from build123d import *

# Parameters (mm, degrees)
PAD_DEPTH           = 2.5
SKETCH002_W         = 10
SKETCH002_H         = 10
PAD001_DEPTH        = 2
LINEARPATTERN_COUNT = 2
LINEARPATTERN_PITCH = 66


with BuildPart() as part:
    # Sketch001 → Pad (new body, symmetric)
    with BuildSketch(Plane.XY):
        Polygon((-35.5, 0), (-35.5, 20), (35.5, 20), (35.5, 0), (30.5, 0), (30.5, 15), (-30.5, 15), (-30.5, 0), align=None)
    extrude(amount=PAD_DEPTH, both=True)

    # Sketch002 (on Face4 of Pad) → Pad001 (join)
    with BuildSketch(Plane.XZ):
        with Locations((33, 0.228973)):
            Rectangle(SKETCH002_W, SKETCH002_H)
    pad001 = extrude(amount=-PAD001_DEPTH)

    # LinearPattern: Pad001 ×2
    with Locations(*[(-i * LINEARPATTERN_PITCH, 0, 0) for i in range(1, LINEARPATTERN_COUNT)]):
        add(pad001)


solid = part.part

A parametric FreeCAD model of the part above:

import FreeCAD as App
import Part
import Sketcher

V = App.Vector

doc = App.newDocument("Part")
body = doc.addObject("PartDesign::Body", "Body")

# Sketch on XY plane
sketch1 = body.newObject("Sketcher::SketchObject", "Sketch")
sketch1.AttachmentSupport = (doc.getObject("XY_Plane"), [""])
sketch1.MapMode = "FlatFace"
sketch1.addGeometry(Part.LineSegment(V(-36, 20, 0), V(-36, 0, 0)), False)
sketch1.addGeometry(Part.LineSegment(V(-36, 0, 0), V(-30, 0, 0)), False)
sketch1.addGeometry(Part.LineSegment(V(-30, 0, 0), V(-30, 15, 0)), False)
sketch1.addGeometry(Part.LineSegment(V(-30, 15, 0), V(30, 15, 0)), False)
sketch1.addGeometry(Part.LineSegment(V(30, 15, 0), V(30, 0, 0)), False)
sketch1.addGeometry(Part.LineSegment(V(30, 0, 0), V(36, 0, 0)), False)
sketch1.addGeometry(Part.LineSegment(V(36, 0, 0), V(36, 20, 0)), False)
sketch1.addGeometry(Part.LineSegment(V(36, 20, 0), V(-36, 20, 0)), False)
sketch1.addConstraint(Sketcher.Constraint("Coincident", 0, 2, 1, 1))
sketch1.addConstraint(Sketcher.Constraint("Coincident", 1, 2, 2, 1))
sketch1.addConstraint(Sketcher.Constraint("Coincident", 2, 2, 3, 1))
sketch1.addConstraint(Sketcher.Constraint("Coincident", 3, 2, 4, 1))
sketch1.addConstraint(Sketcher.Constraint("Coincident", 4, 2, 5, 1))
sketch1.addConstraint(Sketcher.Constraint("Coincident", 5, 2, 6, 1))
sketch1.addConstraint(Sketcher.Constraint("Coincident", 6, 2, 7, 1))
sketch1.addConstraint(Sketcher.Constraint("Coincident", 7, 2, 0, 1))
sketch1.addConstraint(Sketcher.Constraint("Vertical", 0))
sketch1.addConstraint(Sketcher.Constraint("Horizontal", 1))
sketch1.addConstraint(Sketcher.Constraint("Vertical", 2))
sketch1.addConstraint(Sketcher.Constraint("Horizontal", 3))
sketch1.addConstraint(Sketcher.Constraint("Vertical", 4))
sketch1.addConstraint(Sketcher.Constraint("Horizontal", 5))
sketch1.addConstraint(Sketcher.Constraint("Vertical", 6))
sketch1.addConstraint(Sketcher.Constraint("Horizontal", 7))
sketch1.addConstraint(Sketcher.Constraint("Symmetric", 1, 2, 4, 2, -1, 1))
sketch1.addConstraint(Sketcher.Constraint("Symmetric", 0, 2, 5, 2, -2))
sketch1.addConstraint(Sketcher.Constraint("DistanceX", 1, 1, 1, 2, 5.0))
sketch1.addConstraint(Sketcher.Constraint("DistanceX", 3, 1, 3, 2, 61.0))
sketch1.addConstraint(Sketcher.Constraint("DistanceY", 0, 2, 0, 1, 20.0))
sketch1.addConstraint(Sketcher.Constraint("DistanceY", 2, 1, 2, 2, 15.0))
pad1 = body.newObject("PartDesign::Pad", "Pad")
pad1.Profile = sketch1
pad1.Length = 5
pad1.Midplane = True

# Sketch on XZ plane
sketch2 = body.newObject("Sketcher::SketchObject", "Sketch001")
sketch2.AttachmentSupport = (doc.getObject("XZ_Plane"), [""])
sketch2.MapMode = "FlatFace"
sketch2.addGeometry(Part.LineSegment(V(28, 5, 0), V(28, -5, 0)), False)
sketch2.addGeometry(Part.LineSegment(V(28, -5, 0), V(38, -5, 0)), False)
sketch2.addGeometry(Part.LineSegment(V(38, -5, 0), V(38, 5, 0)), False)
sketch2.addGeometry(Part.LineSegment(V(38, 5, 0), V(28, 5, 0)), False)
sketch2.addConstraint(Sketcher.Constraint("Coincident", 0, 2, 1, 1))
sketch2.addConstraint(Sketcher.Constraint("Coincident", 1, 2, 2, 1))
sketch2.addConstraint(Sketcher.Constraint("Coincident", 2, 2, 3, 1))
sketch2.addConstraint(Sketcher.Constraint("Coincident", 3, 2, 0, 1))
sketch2.addConstraint(Sketcher.Constraint("Vertical", 0))
sketch2.addConstraint(Sketcher.Constraint("Horizontal", 1))
sketch2.addConstraint(Sketcher.Constraint("Vertical", 2))
sketch2.addConstraint(Sketcher.Constraint("Horizontal", 3))
sketch2.addConstraint(Sketcher.Constraint("Equal", 3, 0))
sketch2.addConstraint(Sketcher.Constraint("DistanceX", 1, 1, 1, 2, 10.0))
sketch2.addConstraint(Sketcher.Constraint("DistanceX", -1, 1, 0, 2, 28.0))
sketch2.addConstraint(Sketcher.Constraint("DistanceY", 0, 2, -1, 1, 4.771027))
pad2 = body.newObject("PartDesign::Pad", "Pad001")
pad2.Profile = sketch2
pad2.Length = 2
pad2.Reversed = True
doc.recompute()

linearpattern = body.newObject("PartDesign::LinearPattern", "LinearPattern")
linearpattern.Originals = [pad2]
linearpattern.Direction = (doc.getObject("X_Axis"), [""])
linearpattern.Mode = "offset"
linearpattern.Offset = 66
linearpattern.Occurrences = 2
linearpattern.Reversed = True
body.Tip = linearpattern

doc.recompute()
